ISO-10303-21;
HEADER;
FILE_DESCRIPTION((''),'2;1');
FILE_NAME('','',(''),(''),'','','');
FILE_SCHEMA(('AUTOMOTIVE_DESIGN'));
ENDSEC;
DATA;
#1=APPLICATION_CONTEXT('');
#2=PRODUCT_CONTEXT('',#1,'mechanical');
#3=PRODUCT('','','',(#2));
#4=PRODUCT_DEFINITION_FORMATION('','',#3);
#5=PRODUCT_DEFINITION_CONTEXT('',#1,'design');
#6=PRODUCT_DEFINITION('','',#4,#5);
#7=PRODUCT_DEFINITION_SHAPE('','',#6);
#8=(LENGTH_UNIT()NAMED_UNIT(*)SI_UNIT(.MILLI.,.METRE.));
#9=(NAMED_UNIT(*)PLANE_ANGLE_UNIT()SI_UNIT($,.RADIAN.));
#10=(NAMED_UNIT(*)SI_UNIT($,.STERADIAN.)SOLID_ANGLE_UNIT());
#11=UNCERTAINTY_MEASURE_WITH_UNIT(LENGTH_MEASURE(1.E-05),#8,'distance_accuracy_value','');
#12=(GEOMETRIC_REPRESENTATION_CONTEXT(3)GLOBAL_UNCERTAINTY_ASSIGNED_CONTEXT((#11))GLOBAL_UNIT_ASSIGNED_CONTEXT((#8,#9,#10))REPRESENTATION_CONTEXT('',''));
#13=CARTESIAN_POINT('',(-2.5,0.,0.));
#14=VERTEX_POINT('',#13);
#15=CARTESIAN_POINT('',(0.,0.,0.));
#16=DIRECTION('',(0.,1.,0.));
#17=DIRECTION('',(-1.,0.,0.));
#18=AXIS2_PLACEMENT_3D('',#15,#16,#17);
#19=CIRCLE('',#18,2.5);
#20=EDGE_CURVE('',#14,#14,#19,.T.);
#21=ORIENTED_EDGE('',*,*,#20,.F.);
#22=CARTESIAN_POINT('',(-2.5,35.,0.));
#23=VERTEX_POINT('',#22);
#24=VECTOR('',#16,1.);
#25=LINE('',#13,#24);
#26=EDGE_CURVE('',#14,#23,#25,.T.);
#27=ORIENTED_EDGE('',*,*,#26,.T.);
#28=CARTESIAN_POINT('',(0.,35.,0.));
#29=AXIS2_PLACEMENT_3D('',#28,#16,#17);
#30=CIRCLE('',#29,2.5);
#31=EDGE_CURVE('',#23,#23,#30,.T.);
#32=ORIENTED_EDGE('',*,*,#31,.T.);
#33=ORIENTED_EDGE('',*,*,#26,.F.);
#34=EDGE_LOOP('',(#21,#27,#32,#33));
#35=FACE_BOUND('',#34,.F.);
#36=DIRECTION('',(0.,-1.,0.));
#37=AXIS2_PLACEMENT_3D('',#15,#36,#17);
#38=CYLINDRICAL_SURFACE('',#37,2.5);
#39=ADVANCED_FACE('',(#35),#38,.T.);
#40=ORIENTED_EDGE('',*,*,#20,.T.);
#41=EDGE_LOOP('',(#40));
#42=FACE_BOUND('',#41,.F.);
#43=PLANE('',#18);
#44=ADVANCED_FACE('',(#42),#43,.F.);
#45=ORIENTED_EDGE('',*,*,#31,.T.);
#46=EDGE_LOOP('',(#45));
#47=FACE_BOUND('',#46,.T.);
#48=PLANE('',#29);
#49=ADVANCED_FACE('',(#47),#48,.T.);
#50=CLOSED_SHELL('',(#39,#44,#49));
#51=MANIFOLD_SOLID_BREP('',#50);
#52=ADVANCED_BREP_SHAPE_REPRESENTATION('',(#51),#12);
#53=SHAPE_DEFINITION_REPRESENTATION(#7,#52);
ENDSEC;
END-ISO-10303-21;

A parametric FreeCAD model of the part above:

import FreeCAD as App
import Part
import Sketcher

V = App.Vector

doc = App.newDocument("Part")
params = doc.addObject("Spreadsheet::Sheet", "Params")
for row, (alias, value) in enumerate([
    ("sketch1_diameter", "5 mm"),
    ("pad1_length", "35 mm"),
], start=1):
    params.set(f"A{row}", alias)
    params.set(f"B{row}", "=" + value)
    params.setAlias(f"B{row}", alias)

body = doc.addObject("PartDesign::Body", "Body")

# Sketch on XZ plane
sketch1 = doc.addObject("Sketcher::SketchObject", "Sketch")
body.addObject(sketch1)
sketch1.AttachmentSupport = (doc.XZ_Plane, [""])
sketch1.MapMode = "FlatFace"
sketch1.addGeometry(Part.Circle(V(0, 0, 0), V(0, 0, 1), 2.5), False)
sketch1.addConstraint(Sketcher.Constraint("Coincident", 0, 3, -1, 1))
sketch1.addConstraint(Sketcher.Constraint("Diameter", 0, 5.0))
sketch1.setExpression("Constraints[1]", "Params.sketch1_diameter")
pad1 = doc.addObject("PartDesign::Pad", "Pad")
body.addObject(pad1)
pad1.Profile = sketch1
pad1.setExpression("Length", "Params.pad1_length")
pad1.Reversed = True

doc.recompute()
